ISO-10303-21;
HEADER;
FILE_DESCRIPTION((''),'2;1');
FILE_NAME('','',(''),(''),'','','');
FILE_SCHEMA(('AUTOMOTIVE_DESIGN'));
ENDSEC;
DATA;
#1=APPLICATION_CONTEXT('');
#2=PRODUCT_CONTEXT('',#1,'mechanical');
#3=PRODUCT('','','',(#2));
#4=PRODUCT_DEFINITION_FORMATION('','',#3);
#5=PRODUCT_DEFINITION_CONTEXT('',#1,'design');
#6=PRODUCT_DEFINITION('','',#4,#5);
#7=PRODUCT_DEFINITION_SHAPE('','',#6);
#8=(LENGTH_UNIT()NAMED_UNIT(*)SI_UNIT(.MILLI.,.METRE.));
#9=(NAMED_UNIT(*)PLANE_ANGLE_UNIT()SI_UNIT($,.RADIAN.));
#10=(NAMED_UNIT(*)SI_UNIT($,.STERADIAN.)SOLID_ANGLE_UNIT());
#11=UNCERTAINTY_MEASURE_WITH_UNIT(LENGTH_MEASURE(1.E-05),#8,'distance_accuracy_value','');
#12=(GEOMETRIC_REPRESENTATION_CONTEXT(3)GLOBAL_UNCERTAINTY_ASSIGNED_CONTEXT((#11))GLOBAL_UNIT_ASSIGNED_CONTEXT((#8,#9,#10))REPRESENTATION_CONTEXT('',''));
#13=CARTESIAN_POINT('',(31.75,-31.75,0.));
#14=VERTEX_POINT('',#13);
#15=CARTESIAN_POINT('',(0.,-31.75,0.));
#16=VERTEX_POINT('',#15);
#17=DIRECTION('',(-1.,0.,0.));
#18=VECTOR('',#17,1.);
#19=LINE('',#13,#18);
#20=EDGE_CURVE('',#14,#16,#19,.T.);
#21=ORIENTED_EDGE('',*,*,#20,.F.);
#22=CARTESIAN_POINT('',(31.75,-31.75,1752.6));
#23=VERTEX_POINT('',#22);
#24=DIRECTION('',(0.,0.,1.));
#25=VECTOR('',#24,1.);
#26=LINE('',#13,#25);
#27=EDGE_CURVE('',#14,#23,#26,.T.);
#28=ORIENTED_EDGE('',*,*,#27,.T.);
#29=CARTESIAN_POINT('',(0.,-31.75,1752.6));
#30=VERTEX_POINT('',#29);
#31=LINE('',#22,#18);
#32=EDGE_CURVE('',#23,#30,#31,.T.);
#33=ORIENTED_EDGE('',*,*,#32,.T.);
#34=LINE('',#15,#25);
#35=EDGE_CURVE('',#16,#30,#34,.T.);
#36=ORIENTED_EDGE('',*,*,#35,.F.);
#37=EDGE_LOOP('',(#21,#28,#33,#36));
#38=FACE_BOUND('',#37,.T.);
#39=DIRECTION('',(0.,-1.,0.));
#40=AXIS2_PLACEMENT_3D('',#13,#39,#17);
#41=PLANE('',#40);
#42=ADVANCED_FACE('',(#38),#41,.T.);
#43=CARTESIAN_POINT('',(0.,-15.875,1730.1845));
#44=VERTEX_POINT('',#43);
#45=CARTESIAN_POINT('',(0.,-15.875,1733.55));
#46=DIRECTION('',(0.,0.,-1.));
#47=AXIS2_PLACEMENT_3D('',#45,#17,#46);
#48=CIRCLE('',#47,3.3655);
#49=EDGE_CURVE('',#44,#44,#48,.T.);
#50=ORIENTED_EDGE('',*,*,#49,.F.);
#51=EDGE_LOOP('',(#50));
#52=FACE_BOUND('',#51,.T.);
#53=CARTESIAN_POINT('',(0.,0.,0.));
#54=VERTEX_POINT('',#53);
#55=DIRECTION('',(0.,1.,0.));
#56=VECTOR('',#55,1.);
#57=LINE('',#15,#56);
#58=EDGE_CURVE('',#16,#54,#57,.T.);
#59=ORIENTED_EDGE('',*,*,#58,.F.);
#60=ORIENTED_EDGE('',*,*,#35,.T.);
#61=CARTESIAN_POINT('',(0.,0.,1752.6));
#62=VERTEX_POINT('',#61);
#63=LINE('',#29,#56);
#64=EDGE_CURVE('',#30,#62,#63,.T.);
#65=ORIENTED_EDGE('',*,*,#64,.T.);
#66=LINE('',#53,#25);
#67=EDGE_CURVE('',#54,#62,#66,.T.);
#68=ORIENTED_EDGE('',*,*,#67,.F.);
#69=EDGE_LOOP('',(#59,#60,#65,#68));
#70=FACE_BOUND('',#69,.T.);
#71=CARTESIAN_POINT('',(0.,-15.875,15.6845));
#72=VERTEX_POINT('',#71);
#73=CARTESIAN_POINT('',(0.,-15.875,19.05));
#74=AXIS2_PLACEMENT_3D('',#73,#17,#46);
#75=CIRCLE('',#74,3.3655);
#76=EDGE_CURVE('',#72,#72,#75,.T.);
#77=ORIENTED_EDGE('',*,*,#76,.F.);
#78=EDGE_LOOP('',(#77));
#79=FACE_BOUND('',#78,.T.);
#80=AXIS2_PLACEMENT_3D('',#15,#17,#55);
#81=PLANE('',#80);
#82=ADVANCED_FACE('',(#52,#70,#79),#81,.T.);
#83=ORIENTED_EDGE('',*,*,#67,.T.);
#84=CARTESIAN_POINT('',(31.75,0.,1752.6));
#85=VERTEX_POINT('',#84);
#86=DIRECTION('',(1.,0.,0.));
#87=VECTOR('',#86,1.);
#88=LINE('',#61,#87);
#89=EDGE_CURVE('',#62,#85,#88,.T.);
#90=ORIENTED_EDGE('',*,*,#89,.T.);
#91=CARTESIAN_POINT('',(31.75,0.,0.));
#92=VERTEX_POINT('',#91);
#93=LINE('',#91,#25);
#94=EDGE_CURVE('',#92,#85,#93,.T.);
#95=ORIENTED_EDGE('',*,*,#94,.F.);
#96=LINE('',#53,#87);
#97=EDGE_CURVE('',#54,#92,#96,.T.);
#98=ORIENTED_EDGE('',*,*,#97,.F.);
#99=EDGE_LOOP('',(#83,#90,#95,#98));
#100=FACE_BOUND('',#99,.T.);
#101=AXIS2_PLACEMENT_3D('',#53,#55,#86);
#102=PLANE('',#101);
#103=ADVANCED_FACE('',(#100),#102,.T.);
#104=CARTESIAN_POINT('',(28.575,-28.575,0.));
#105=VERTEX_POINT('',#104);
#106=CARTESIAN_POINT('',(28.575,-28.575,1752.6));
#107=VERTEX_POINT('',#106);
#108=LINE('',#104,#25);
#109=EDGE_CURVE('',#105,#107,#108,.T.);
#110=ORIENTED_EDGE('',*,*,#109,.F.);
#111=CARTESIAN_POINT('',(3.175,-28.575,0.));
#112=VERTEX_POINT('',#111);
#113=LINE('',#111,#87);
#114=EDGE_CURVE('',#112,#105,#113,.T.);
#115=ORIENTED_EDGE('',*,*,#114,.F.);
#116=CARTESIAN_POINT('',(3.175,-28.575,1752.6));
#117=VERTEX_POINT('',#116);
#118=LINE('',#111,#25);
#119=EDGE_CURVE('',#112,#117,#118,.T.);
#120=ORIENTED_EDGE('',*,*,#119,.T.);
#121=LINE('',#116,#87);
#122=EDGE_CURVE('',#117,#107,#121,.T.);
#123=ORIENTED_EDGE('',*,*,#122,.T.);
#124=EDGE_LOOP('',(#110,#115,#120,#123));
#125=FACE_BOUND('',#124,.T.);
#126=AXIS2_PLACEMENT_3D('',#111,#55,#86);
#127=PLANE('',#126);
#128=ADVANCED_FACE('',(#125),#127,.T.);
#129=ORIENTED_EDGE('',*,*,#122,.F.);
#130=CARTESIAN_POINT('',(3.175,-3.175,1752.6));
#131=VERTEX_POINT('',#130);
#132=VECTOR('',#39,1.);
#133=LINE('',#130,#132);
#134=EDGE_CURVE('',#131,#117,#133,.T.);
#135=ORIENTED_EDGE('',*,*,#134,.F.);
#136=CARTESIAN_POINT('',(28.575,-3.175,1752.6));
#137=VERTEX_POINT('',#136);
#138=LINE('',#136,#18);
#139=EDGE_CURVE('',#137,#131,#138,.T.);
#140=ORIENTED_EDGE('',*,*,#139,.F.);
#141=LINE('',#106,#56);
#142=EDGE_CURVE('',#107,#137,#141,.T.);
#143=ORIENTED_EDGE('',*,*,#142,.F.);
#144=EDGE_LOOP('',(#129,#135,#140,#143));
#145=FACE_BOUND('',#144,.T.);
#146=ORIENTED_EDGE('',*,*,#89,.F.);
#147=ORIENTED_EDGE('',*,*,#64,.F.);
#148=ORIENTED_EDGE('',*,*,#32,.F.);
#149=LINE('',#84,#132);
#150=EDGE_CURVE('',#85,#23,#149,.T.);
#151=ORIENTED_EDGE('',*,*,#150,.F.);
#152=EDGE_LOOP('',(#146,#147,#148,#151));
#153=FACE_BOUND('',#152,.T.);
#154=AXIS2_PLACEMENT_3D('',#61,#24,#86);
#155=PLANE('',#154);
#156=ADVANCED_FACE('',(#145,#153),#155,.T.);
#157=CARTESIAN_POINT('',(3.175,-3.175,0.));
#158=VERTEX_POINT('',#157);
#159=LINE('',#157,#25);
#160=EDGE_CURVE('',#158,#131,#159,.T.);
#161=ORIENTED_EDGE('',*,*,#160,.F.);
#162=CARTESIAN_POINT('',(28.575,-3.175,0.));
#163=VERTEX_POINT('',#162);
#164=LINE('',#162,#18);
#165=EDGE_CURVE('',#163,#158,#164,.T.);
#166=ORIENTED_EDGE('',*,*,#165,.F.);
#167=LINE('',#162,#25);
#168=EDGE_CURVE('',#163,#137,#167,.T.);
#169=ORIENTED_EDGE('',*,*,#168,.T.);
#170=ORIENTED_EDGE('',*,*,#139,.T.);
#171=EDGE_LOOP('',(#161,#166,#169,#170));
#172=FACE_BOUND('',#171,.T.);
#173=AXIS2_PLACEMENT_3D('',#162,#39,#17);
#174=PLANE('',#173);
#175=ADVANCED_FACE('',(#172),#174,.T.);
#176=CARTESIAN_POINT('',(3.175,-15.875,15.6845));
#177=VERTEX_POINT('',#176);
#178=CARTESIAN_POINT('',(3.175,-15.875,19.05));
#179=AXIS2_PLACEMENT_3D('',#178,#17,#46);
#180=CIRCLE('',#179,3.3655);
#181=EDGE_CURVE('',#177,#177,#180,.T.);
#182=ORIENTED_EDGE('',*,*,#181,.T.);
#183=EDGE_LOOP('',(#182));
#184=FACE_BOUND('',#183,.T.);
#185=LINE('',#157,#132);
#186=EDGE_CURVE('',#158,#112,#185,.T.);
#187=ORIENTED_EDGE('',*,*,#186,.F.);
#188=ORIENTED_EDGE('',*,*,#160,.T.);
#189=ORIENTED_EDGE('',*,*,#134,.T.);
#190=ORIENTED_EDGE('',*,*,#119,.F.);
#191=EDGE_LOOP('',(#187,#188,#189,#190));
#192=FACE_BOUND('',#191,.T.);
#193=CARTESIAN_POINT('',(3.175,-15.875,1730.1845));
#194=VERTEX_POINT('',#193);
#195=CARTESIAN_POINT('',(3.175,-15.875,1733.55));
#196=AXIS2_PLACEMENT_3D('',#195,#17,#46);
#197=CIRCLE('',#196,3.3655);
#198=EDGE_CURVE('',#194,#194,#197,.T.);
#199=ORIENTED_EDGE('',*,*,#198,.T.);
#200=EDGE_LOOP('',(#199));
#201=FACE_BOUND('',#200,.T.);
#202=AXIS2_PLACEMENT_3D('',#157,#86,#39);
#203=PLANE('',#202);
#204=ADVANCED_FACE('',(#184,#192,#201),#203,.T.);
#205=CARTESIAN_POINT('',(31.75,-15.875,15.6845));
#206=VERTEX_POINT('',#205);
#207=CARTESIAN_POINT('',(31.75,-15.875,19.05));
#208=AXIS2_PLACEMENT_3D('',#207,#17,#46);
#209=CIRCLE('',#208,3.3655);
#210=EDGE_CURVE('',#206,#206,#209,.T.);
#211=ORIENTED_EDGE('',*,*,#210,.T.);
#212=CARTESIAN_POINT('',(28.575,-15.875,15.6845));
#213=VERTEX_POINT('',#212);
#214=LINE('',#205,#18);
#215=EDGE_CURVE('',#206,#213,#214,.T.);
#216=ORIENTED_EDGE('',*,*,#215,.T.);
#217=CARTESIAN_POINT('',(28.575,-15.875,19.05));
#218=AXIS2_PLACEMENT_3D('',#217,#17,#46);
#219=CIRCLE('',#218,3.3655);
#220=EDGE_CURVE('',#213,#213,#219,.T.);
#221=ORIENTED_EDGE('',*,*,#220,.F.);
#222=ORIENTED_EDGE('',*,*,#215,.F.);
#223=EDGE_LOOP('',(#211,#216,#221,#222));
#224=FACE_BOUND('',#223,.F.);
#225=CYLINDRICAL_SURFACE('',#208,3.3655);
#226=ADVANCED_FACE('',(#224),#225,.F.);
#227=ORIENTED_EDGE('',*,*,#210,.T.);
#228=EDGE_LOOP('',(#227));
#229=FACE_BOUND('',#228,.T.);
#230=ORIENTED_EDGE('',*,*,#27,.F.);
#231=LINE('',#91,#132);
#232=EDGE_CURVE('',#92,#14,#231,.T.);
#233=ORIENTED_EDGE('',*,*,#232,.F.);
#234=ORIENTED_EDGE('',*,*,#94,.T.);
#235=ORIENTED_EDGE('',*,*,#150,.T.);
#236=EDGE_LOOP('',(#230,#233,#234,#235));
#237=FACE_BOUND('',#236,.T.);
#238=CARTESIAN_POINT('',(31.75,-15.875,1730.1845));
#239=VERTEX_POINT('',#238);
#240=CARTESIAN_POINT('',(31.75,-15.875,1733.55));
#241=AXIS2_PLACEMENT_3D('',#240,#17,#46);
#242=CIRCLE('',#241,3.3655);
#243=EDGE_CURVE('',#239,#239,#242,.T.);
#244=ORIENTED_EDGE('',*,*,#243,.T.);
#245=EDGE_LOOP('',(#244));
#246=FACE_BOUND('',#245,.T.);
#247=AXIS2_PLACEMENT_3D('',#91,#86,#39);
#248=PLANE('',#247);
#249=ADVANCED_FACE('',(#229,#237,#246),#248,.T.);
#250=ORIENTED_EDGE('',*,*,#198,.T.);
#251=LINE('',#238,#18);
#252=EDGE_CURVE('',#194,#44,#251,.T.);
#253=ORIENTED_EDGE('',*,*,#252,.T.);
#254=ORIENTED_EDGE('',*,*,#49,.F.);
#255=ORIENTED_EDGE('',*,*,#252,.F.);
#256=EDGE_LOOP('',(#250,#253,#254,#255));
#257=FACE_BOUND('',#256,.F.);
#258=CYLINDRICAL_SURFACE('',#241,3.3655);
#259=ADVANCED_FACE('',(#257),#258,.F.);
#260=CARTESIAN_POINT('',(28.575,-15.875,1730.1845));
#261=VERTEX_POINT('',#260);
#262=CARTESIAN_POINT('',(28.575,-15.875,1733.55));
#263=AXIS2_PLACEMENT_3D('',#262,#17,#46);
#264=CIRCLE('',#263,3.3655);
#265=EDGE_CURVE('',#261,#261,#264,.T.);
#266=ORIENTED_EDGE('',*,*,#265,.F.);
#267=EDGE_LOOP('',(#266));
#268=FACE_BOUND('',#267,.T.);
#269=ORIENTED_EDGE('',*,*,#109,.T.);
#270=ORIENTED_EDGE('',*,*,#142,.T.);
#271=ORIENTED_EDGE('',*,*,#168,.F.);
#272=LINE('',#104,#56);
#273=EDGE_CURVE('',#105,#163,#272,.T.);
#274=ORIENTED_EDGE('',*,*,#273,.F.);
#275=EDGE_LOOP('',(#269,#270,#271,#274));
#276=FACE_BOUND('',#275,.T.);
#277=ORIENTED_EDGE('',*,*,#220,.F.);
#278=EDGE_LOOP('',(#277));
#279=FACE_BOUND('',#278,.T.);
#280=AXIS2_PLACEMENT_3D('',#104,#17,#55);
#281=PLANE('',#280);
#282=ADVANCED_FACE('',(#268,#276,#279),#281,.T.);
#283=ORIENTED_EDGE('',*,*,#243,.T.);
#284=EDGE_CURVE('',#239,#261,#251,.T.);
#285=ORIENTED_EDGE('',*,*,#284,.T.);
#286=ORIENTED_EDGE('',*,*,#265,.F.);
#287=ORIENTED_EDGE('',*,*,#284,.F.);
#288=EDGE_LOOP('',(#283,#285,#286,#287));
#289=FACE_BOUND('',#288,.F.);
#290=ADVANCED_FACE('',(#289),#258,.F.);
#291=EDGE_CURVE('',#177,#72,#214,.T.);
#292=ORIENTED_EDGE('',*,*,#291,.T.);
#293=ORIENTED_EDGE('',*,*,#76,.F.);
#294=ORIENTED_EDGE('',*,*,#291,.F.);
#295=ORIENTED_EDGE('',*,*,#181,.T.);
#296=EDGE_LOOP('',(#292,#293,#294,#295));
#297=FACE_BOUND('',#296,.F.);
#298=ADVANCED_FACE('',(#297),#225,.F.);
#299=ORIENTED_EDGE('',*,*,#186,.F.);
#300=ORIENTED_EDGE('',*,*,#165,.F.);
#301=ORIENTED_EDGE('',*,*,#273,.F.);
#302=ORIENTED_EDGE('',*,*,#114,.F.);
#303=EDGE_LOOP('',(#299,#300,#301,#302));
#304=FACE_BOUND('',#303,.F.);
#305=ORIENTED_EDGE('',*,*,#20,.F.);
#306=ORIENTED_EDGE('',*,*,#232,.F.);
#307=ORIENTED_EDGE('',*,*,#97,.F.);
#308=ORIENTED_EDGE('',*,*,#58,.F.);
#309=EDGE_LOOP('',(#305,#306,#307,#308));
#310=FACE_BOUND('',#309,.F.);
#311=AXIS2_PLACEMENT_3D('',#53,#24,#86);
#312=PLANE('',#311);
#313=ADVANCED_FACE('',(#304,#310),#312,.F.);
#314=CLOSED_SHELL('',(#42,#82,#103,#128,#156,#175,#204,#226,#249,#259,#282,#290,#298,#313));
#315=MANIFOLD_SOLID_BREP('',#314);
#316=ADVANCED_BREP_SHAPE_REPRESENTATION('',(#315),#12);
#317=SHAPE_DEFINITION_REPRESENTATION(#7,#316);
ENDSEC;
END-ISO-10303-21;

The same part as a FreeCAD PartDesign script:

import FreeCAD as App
import Part
import Sketcher

V = App.Vector
Q = App.Units.Quantity


def add_polygon(sketch, points):
    """Adds a closed chain of lines whose ends are joined by coincident constraints."""
    first, n = sketch.GeometryCount, len(points)
    for a, b in zip(points, points[1:] + points[:1]):
        sketch.addGeometry(Part.LineSegment(App.Vector(*a, 0), App.Vector(*b, 0)), False)
    for i in range(n):
        sketch.addConstraint(Sketcher.Constraint("Coincident", first + i, 2, first + (i + 1) % n, 1))

doc = App.newDocument("Part")
body = doc.addObject("PartDesign::Body", "Body")

sketch1 = doc.addObject("Sketcher::SketchObject", "Sketch")
body.addObject(sketch1)
sketch1.AttachmentSupport = (doc.XY_Plane, [""])
sketch1.MapMode = "FlatFace"
add_polygon(sketch1, [(31.75, 0), (0, 0), (0, -31.75), (31.75, -31.75)])
add_polygon(sketch1, [(28.575, -3.175), (28.575, -28.575), (3.175, -28.575), (3.175, -3.175)])
sketch1.addConstraint(Sketcher.Constraint("Horizontal", 0))
sketch1.addConstraint(Sketcher.Constraint("Vertical", 1))
sketch1.addConstraint(Sketcher.Constraint("Horizontal", 2))
sketch1.addConstraint(Sketcher.Constraint("Vertical", 3))
sketch1.addConstraint(Sketcher.Constraint("Vertical", 4))
sketch1.addConstraint(Sketcher.Constraint("Horizontal", 5))
sketch1.addConstraint(Sketcher.Constraint("Vertical", 6))
sketch1.addConstraint(Sketcher.Constraint("Horizontal", 7))
sketch1.addConstraint(Sketcher.Constraint("Coincident", 0, 2, -1, 1))
sketch1.addConstraint(Sketcher.Constraint("Equal", 2, 1))
sketch1.addConstraint(Sketcher.Constraint("Equal", 7, 4))
sketch1.addConstraint(Sketcher.Constraint("DistanceX", 0, 2, 0, 1, Q("1.25 in")))
sketch1.addConstraint(Sketcher.Constraint("DistanceX", 5, 2, 5, 1, Q("1 in")))
sketch1.addConstraint(Sketcher.Constraint("DistanceX", -1, 1, 5, 2, Q("0.125 in")))
sketch1.addConstraint(Sketcher.Constraint("DistanceY", 6, 2, -1, 1, Q("0.125 in")))
pad1 = doc.addObject("PartDesign::Pad", "Pad")
body.addObject(pad1)
pad1.Profile = sketch1
pad1.Length = Q("69 in")

sketch2 = doc.addObject("Sketcher::SketchObject", "Sketch001")
body.addObject(sketch2)
sketch2.AttachmentSupport = (doc.YZ_Plane, [""])
sketch2.MapMode = "FlatFace"
sketch2.AttachmentOffset = App.Placement(V(0, 0, 1.25 * 25.4), App.Rotation())
sketch2.addGeometry(Part.Circle(V(-15.875, 1733.55, 0), V(0, 0, 1), 3.3655), False)
sketch2.addConstraint(Sketcher.Constraint("Diameter", 0, Q("0.265 in")))
sketch2.addConstraint(Sketcher.Constraint("DistanceY", -1, 1, 0, 3, Q("68.25 in")))
sketch2.addConstraint(Sketcher.Constraint("DistanceX", 0, 3, -1, 1, Q("0.625 in")))
doc.recompute()
hole = doc.addObject("PartDesign::Hole", "Hole")
body.addObject(hole)
hole.Profile = sketch2
hole.ThreadType = "None"
hole.Diameter = Q("0.265 in")
hole.DepthType = "ThroughAll"

sketch3 = doc.addObject("Sketcher::SketchObject", "Sketch002")
body.addObject(sketch3)
sketch3.AttachmentSupport = (doc.YZ_Plane, [""])
sketch3.MapMode = "FlatFace"
sketch3.AttachmentOffset = App.Placement(V(0, 0, 1.25 * 25.4), App.Rotation())
sketch3.addGeometry(Part.Circle(V(-15.875, 19.05, 0), V(0, 0, 1), 3.3655), False)
sketch3.addConstraint(Sketcher.Constraint("Diameter", 0, Q("0.265 in")))
sketch3.addConstraint(Sketcher.Constraint("DistanceY", -1, 1, 0, 3, Q("0.75 in")))
sketch3.addConstraint(Sketcher.Constraint("DistanceX", 0, 3, -1, 1, Q("0.625 in")))
doc.recompute()
hole2 = doc.addObject("PartDesign::Hole", "Hole001")
body.addObject(hole2)
hole2.Profile = sketch3
hole2.ThreadType = "None"
hole2.Diameter = Q("0.265 in")
hole2.DepthType = "ThroughAll"

doc.recompute()
